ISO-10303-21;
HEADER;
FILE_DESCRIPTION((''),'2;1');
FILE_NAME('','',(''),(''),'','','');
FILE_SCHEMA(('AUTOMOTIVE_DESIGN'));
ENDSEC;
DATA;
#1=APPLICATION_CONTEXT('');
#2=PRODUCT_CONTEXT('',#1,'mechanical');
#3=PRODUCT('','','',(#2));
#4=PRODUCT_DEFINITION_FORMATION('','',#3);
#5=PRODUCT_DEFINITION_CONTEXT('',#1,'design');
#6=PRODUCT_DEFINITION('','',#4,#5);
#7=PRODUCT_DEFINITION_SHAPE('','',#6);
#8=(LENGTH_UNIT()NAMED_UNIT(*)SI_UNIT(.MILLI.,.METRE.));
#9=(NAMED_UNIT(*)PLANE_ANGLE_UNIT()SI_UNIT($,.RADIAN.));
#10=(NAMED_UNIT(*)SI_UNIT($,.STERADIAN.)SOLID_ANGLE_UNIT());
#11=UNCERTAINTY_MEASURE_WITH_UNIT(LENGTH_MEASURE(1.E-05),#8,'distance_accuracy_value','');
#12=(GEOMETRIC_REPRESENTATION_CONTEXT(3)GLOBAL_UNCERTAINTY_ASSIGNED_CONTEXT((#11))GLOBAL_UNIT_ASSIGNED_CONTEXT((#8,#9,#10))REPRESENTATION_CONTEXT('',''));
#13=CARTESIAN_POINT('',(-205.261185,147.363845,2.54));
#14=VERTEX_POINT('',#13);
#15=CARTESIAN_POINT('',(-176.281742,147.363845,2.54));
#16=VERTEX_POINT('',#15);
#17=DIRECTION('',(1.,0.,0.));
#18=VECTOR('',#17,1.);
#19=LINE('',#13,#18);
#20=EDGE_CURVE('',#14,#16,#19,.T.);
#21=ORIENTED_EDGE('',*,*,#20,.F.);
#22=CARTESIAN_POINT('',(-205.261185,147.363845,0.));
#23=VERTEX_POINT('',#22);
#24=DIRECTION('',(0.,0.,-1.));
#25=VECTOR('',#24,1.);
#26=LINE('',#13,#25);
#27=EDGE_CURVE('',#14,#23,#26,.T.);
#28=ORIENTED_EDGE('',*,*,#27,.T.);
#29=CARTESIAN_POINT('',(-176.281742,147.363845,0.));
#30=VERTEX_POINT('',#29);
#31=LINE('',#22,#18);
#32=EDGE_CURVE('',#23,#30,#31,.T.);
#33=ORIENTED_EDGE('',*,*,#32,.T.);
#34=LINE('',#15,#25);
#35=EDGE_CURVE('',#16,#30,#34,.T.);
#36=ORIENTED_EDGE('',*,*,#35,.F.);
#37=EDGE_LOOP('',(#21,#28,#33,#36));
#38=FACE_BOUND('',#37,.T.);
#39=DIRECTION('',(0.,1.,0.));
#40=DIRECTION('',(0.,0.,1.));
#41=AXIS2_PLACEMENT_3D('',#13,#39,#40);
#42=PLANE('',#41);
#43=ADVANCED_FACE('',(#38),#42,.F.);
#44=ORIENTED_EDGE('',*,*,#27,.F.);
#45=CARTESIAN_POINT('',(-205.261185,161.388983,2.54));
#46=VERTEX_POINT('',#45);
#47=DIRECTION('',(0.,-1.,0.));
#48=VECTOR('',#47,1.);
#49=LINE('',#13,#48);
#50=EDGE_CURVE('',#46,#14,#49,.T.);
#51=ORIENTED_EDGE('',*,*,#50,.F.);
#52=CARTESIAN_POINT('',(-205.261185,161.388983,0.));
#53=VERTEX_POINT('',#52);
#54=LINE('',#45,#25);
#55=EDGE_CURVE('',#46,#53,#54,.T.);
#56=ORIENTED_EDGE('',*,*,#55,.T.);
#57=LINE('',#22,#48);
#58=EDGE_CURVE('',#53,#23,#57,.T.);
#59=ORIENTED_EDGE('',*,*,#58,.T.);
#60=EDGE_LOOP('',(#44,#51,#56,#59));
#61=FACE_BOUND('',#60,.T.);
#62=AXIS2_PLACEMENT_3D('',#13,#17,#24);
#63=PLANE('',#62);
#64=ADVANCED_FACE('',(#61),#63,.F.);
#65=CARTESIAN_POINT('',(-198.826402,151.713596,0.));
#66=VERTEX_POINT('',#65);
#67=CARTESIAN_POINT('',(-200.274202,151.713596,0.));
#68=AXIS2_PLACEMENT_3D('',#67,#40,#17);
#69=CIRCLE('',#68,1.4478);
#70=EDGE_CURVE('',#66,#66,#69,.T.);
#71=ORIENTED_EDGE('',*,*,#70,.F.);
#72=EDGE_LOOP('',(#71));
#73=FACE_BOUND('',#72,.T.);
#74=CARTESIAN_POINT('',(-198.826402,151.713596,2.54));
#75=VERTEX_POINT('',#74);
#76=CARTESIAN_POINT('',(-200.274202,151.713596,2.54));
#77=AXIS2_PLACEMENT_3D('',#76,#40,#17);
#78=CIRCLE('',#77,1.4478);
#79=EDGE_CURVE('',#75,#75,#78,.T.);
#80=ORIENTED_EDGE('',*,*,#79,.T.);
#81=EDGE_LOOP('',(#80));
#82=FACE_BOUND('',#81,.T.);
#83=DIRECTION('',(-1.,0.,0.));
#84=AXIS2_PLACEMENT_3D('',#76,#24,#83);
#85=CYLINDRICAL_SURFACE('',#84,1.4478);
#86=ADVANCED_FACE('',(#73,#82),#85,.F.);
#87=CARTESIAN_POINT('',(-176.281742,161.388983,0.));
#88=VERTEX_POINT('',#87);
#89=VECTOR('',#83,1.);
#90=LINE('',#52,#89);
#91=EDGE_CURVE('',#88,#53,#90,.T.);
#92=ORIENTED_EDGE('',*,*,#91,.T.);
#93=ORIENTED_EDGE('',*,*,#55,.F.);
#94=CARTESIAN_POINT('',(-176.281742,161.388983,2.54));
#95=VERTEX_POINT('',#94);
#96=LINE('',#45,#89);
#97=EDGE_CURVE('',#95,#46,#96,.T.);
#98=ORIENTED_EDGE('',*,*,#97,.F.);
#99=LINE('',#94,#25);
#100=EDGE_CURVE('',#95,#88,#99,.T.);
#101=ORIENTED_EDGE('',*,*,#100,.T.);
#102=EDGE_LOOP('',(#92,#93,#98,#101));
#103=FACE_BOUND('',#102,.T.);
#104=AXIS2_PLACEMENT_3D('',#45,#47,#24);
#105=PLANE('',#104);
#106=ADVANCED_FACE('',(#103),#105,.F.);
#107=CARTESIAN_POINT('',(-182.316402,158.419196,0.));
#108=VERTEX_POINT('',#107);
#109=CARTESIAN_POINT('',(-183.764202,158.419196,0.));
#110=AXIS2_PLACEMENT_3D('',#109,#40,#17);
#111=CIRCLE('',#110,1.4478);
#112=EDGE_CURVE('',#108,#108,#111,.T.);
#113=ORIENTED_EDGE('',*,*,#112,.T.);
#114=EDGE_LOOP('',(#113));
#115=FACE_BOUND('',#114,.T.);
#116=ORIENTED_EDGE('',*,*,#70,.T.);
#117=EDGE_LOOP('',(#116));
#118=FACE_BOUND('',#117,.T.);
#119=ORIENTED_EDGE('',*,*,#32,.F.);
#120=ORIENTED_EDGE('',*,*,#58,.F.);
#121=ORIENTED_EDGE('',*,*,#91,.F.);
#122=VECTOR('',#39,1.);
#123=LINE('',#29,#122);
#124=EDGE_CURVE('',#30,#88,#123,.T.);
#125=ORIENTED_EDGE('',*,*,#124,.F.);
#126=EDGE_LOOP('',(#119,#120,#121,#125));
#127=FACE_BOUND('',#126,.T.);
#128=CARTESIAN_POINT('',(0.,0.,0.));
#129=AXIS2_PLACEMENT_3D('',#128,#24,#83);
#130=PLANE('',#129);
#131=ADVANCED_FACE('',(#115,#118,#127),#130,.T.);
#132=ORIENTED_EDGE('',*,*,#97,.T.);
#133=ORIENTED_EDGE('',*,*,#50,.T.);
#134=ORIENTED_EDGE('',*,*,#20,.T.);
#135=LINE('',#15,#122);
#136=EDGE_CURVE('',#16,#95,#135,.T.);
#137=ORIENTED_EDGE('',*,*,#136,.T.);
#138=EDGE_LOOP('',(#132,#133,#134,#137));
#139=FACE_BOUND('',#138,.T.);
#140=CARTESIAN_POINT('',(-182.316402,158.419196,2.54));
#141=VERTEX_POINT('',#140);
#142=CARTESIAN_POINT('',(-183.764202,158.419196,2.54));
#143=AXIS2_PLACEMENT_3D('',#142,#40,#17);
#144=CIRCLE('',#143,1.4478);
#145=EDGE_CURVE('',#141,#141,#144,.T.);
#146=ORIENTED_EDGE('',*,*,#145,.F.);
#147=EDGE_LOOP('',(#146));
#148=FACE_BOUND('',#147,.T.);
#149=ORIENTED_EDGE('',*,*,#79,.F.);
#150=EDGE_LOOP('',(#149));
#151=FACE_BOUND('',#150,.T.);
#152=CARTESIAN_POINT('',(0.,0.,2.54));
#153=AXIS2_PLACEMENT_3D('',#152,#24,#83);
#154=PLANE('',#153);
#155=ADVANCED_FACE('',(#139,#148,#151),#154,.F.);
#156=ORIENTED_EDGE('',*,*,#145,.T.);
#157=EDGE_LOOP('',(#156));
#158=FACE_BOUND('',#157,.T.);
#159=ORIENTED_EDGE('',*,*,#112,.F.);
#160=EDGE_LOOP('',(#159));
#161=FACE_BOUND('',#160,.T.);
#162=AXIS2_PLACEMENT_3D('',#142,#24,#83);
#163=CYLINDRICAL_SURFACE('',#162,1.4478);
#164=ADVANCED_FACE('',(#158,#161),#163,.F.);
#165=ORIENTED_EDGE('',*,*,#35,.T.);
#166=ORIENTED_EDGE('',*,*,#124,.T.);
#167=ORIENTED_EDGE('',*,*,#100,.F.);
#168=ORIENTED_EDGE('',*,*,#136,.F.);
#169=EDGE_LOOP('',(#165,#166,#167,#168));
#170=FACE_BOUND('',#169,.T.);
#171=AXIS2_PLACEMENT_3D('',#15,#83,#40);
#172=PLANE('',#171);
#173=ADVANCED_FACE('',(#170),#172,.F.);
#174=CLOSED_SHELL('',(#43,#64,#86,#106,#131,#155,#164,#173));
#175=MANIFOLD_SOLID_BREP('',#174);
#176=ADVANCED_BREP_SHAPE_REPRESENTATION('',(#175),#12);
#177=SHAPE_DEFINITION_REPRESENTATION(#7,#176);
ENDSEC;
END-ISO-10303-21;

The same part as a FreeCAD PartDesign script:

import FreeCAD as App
import Part
import Sketcher
Q = App.Units.Quantity


def add_polygon(sketch, points):
    """Adds a closed chain of lines whose ends are joined by coincident constraints."""
    first, n = sketch.GeometryCount, len(points)
    for a, b in zip(points, points[1:] + points[:1]):
        sketch.addGeometry(Part.LineSegment(App.Vector(*a, 0), App.Vector(*b, 0)), False)
    for i in range(n):
        sketch.addConstraint(Sketcher.Constraint("Coincident", first + i, 2, first + (i + 1) % n, 1))

doc = App.newDocument("Part")
body = doc.addObject("PartDesign::Body", "Body")

# Sketch on XY plane
sketch1 = body.newObject("Sketcher::SketchObject", "Sketch")
sketch1.AttachmentSupport = (doc.getObject("XY_Plane"), [""])
sketch1.MapMode = "FlatFace"
add_polygon(sketch1, [(-205.3, 161.4), (-205.3, 147.4), (-176.3, 147.4), (-176.3, 161.4)])  # lines 0-3
sketch1.addGeometry(Part.Circle(App.Vector(-200.3, 151.7, 0), App.Vector(0, 0, 1), 1.4), False)  # 4
sketch1.addGeometry(Part.Circle(App.Vector(-183.8, 158.4, 0), App.Vector(0, 0, 1), 1.4), False)  # 5
sketch1.addConstraint([
    Sketcher.Constraint("Vertical", 0),
    Sketcher.Constraint("Horizontal", 1),
    Sketcher.Constraint("Vertical", 2),
    Sketcher.Constraint("Horizontal", 3),
    Sketcher.Constraint("Equal", 4, 5),
    Sketcher.Constraint("Diameter", 4, Q("0.114 in")),
    Sketcher.Constraint("DistanceX", 4, 3, 5, 3, Q("0.65 in")),
    Sketcher.Constraint("DistanceY", 4, 3, 5, 3, Q("0.264 in")),
    Sketcher.Constraint("DistanceY", 0, 2, 0, 1, 14.025138),
    Sketcher.Constraint("DistanceX", 4, 3, -1, 1, 200.274202),
    Sketcher.Constraint("DistanceX", 1, 1, 1, 2, 28.979443),
    Sketcher.Constraint("DistanceY", 0, 2, 4, 3, 4.349751),
    Sketcher.Constraint("DistanceX", 5, 3, 1, 2, 7.48246),
    Sketcher.Constraint("DistanceY", -1, 1, 4, 3, 151.713596),
])
pad1 = body.newObject("PartDesign::Pad", "Pad")
pad1.Profile = sketch1
pad1.Length = Q("0.1 in")

doc.recompute()
